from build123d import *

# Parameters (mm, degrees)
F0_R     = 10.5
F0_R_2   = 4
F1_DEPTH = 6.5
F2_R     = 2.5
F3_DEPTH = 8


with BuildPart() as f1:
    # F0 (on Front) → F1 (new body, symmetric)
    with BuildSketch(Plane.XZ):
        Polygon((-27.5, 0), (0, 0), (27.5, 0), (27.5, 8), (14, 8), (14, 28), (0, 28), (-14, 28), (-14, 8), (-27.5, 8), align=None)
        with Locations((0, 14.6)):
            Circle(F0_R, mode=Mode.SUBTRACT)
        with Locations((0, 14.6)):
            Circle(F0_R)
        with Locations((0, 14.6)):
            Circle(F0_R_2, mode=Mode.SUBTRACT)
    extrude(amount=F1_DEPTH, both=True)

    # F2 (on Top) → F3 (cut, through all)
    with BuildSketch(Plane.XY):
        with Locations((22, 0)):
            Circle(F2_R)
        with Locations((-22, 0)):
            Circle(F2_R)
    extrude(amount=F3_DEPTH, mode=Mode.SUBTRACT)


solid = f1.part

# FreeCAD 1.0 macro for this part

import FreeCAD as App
import Part
import Sketcher

V = App.Vector
Q = App.Units.Quantity


def add_polygon(sketch, points):
    """Adds a closed chain of lines whose ends are joined by coincident constraints."""
    first, n = sketch.GeometryCount, len(points)
    for a, b in zip(points, points[1:] + points[:1]):
        sketch.addGeometry(Part.LineSegment(App.Vector(*a, 0), App.Vector(*b, 0)), False)
    for i in range(n):
        sketch.addConstraint(Sketcher.Constraint("Coincident", first + i, 2, first + (i + 1) % n, 1))

doc = App.newDocument("Part")
body = doc.addObject("PartDesign::Body", "Body")

sketch1 = body.newObject("Sketcher::SketchObject", "Sketch")
sketch1.AttachmentSupport = (doc.getObject("XZ_Plane"), [""])
sketch1.MapMode = "FlatFace"
add_polygon(sketch1, [(-27.5, 0), (27.5, 0), (27.5, 8), (14, 8), (14, 28), (-14, 28), (-14, 8), (-27.5, 8)])
sketch1.addGeometry(Part.Circle(V(0, 14.6, 0), V(0, 0, 1), 4), False)
sketch1.addConstraint(Sketcher.Constraint("Horizontal", 0))
sketch1.addConstraint(Sketcher.Constraint("Vertical", 1))
sketch1.addConstraint(Sketcher.Constraint("Horizontal", 2))
sketch1.addConstraint(Sketcher.Constraint("Vertical", 3))
sketch1.addConstraint(Sketcher.Constraint("Horizontal", 4))
sketch1.addConstraint(Sketcher.Constraint("Vertical", 5))
sketch1.addConstraint(Sketcher.Constraint("Horizontal", 6))
sketch1.addConstraint(Sketcher.Constraint("Vertical", 7))
sketch1.addConstraint(Sketcher.Constraint("Symmetric", 0, 2, 7, 2, -1, 1))
sketch1.addConstraint(Sketcher.Constraint("Symmetric", 2, 2, 5, 2, -2))
sketch1.addConstraint(Sketcher.Constraint("PointOnObject", 8, 3, -2))
sketch1.addConstraint(Sketcher.Constraint("Diameter", 8, Q("8 mm")))
sketch1.addConstraint(Sketcher.Constraint("DistanceX", 0, 1, 0, 2, Q("55 mm")))
sketch1.addConstraint(Sketcher.Constraint("DistanceX", 4, 2, 4, 1, Q("28 mm")))
sketch1.addConstraint(Sketcher.Constraint("DistanceY", 1, 1, 1, 2, Q("8 mm")))
sketch1.addConstraint(Sketcher.Constraint("DistanceY", 3, 1, 3, 2, Q("20 mm")))
sketch1.addConstraint(Sketcher.Constraint("DistanceY", -1, 1, 8, 3, Q("14.6 mm")))
pad1 = body.newObject("PartDesign::Pad", "Pad")
pad1.Profile = sketch1
pad1.Length = 13
pad1.Midplane = True

sketch2 = body.newObject("Sketcher::SketchObject", "Sketch001")
sketch2.AttachmentSupport = (doc.getObject("XY_Plane"), [""])
sketch2.MapMode = "FlatFace"
sketch2.addGeometry(Part.Circle(V(22, 0, 0), V(0, 0, 1), 2.5), False)
sketch2.addGeometry(Part.Circle(V(-22, 0, 0), V(0, 0, 1), 2.5), False)
sketch2.addConstraint(Sketcher.Constraint("Equal", 0, 1))
sketch2.addConstraint(Sketcher.Constraint("Symmetric", 0, 3, 1, 3, -1, 1))
sketch2.addConstraint(Sketcher.Constraint("PointOnObject", 0, 3, -1))
sketch2.addConstraint(Sketcher.Constraint("Diameter", 0, Q("5 mm")))
sketch2.addConstraint(Sketcher.Constraint("DistanceX", -1, 1, 0, 3, Q("22 mm")))
pocket1 = body.newObject("PartDesign::Pocket", "Pocket")
pocket1.Profile = sketch2
pocket1.Type = "ThroughAll"
pocket1.Reversed = True

doc.recompute()
